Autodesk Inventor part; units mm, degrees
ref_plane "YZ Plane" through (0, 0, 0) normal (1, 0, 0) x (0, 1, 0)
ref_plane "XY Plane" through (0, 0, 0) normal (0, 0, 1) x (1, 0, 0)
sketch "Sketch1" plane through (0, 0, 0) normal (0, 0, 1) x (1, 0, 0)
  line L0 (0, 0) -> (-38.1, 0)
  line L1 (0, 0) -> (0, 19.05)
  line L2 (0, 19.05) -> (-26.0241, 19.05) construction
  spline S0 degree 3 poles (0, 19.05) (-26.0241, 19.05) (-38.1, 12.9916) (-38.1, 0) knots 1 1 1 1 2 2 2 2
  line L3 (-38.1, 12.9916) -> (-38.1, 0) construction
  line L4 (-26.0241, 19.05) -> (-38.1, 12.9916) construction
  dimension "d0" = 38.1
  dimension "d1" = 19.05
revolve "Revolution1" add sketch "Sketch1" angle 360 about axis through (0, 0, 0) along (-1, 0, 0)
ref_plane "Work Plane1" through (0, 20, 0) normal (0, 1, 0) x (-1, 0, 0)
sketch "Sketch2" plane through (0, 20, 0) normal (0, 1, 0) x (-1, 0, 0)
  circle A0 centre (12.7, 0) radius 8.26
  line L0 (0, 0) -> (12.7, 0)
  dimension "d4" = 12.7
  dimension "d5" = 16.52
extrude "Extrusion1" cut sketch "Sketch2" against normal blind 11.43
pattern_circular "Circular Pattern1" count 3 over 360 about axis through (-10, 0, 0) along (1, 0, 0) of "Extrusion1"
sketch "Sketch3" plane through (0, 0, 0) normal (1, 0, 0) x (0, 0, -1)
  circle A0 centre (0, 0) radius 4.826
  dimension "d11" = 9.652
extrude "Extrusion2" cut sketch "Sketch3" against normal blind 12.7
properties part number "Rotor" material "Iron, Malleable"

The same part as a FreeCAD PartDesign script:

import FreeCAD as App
import Part
import Sketcher
from FreeCAD import Vector
Q = App.Units.Quantity

doc = App.newDocument("Part")
body = doc.addObject("PartDesign::Body", "Body")

# Sketch on XY plane
sketch1 = body.newObject("Sketcher::SketchObject", "Sketch")
sketch1.AttachmentSupport = (doc.getObject("XY_Plane"), [""])
sketch1.MapMode = "FlatFace"
sketch1.addGeometry(Part.LineSegment(Vector(-38.1, 0, 0), Vector(0, 0, 0)), False)
sketch1.addGeometry(Part.LineSegment(Vector(0, 0, 0), Vector(0, 19.05, 0)), False)
sketch1.addGeometry(Part.BSplineCurve([Vector(0, 19.05, 0), Vector(-26.0241, 19.05, 0), Vector(-38.1, 12.9916, 0), Vector(-38.1, 0, 0)], [4, 4], [1, 2], False, 3, [1, 1, 1, 1], False), False)
sketch1.addConstraint(Sketcher.Constraint("Block", 2))
sketch1.addConstraint(Sketcher.Constraint("Coincident", 0, 2, 1, 1))
sketch1.addConstraint(Sketcher.Constraint("Coincident", 1, 2, 2, 1))
sketch1.addConstraint(Sketcher.Constraint("Coincident", 2, 2, 0, 1))
sketch1.addConstraint(Sketcher.Constraint("Horizontal", 0))
sketch1.addConstraint(Sketcher.Constraint("Vertical", 1))
revolution = body.newObject("PartDesign::Revolution", "Revolution")
revolution.Profile = sketch1
revolution.ReferenceAxis = (sketch1, ["H_Axis"])
revolution.Angle = 360

# Sketch on XZ plane
sketch2 = body.newObject("Sketcher::SketchObject", "Sketch001")
sketch2.AttachmentSupport = (doc.getObject("XZ_Plane"), [""])
sketch2.MapMode = "FlatFace"
sketch2.AttachmentOffset = App.Placement(Vector(0, 0, -0.7874016 * 25.4), App.Rotation())
sketch2.addGeometry(Part.Circle(Vector(-13, 0, 0), Vector(0, 0, 1), 8), False)
sketch2.addConstraint(Sketcher.Constraint("PointOnObject", 0, 3, -1))
sketch2.addConstraint(Sketcher.Constraint("Diameter", 0, Q("0.6504 in")))
sketch2.addConstraint(Sketcher.Constraint("DistanceX", 0, 3, -1, 1, Q("0.5 in")))
pocket1 = body.newObject("PartDesign::Pocket", "Pocket")
pocket1.Profile = sketch2
pocket1.Length = Q("0.45 in")
pocket1.Reversed = True
doc.recompute()

polarpattern = body.newObject("PartDesign::PolarPattern", "PolarPattern")
polarpattern.Originals = [pocket1]
polarpattern.Axis = (doc.getObject("X_Axis"), [""])
polarpattern.Angle = 360
polarpattern.Occurrences = 3
body.Tip = polarpattern

# Sketch on YZ plane
sketch3 = body.newObject("Sketcher::SketchObject", "Sketch002")
sketch3.AttachmentSupport = (doc.getObject("YZ_Plane"), [""])
sketch3.MapMode = "FlatFace"
sketch3.addGeometry(Part.Circle(Vector(0, 0, 0), Vector(0, 0, 1), 4.8), False)
sketch3.addConstraint(Sketcher.Constraint("Coincident", 0, 3, -1, 1))
sketch3.addConstraint(Sketcher.Constraint("Diameter", 0, Q("0.38 in")))
pocket2 = body.newObject("PartDesign::Pocket", "Pocket001")
pocket2.Profile = sketch3
pocket2.Length = Q("0.5 in")

doc.recompute()
